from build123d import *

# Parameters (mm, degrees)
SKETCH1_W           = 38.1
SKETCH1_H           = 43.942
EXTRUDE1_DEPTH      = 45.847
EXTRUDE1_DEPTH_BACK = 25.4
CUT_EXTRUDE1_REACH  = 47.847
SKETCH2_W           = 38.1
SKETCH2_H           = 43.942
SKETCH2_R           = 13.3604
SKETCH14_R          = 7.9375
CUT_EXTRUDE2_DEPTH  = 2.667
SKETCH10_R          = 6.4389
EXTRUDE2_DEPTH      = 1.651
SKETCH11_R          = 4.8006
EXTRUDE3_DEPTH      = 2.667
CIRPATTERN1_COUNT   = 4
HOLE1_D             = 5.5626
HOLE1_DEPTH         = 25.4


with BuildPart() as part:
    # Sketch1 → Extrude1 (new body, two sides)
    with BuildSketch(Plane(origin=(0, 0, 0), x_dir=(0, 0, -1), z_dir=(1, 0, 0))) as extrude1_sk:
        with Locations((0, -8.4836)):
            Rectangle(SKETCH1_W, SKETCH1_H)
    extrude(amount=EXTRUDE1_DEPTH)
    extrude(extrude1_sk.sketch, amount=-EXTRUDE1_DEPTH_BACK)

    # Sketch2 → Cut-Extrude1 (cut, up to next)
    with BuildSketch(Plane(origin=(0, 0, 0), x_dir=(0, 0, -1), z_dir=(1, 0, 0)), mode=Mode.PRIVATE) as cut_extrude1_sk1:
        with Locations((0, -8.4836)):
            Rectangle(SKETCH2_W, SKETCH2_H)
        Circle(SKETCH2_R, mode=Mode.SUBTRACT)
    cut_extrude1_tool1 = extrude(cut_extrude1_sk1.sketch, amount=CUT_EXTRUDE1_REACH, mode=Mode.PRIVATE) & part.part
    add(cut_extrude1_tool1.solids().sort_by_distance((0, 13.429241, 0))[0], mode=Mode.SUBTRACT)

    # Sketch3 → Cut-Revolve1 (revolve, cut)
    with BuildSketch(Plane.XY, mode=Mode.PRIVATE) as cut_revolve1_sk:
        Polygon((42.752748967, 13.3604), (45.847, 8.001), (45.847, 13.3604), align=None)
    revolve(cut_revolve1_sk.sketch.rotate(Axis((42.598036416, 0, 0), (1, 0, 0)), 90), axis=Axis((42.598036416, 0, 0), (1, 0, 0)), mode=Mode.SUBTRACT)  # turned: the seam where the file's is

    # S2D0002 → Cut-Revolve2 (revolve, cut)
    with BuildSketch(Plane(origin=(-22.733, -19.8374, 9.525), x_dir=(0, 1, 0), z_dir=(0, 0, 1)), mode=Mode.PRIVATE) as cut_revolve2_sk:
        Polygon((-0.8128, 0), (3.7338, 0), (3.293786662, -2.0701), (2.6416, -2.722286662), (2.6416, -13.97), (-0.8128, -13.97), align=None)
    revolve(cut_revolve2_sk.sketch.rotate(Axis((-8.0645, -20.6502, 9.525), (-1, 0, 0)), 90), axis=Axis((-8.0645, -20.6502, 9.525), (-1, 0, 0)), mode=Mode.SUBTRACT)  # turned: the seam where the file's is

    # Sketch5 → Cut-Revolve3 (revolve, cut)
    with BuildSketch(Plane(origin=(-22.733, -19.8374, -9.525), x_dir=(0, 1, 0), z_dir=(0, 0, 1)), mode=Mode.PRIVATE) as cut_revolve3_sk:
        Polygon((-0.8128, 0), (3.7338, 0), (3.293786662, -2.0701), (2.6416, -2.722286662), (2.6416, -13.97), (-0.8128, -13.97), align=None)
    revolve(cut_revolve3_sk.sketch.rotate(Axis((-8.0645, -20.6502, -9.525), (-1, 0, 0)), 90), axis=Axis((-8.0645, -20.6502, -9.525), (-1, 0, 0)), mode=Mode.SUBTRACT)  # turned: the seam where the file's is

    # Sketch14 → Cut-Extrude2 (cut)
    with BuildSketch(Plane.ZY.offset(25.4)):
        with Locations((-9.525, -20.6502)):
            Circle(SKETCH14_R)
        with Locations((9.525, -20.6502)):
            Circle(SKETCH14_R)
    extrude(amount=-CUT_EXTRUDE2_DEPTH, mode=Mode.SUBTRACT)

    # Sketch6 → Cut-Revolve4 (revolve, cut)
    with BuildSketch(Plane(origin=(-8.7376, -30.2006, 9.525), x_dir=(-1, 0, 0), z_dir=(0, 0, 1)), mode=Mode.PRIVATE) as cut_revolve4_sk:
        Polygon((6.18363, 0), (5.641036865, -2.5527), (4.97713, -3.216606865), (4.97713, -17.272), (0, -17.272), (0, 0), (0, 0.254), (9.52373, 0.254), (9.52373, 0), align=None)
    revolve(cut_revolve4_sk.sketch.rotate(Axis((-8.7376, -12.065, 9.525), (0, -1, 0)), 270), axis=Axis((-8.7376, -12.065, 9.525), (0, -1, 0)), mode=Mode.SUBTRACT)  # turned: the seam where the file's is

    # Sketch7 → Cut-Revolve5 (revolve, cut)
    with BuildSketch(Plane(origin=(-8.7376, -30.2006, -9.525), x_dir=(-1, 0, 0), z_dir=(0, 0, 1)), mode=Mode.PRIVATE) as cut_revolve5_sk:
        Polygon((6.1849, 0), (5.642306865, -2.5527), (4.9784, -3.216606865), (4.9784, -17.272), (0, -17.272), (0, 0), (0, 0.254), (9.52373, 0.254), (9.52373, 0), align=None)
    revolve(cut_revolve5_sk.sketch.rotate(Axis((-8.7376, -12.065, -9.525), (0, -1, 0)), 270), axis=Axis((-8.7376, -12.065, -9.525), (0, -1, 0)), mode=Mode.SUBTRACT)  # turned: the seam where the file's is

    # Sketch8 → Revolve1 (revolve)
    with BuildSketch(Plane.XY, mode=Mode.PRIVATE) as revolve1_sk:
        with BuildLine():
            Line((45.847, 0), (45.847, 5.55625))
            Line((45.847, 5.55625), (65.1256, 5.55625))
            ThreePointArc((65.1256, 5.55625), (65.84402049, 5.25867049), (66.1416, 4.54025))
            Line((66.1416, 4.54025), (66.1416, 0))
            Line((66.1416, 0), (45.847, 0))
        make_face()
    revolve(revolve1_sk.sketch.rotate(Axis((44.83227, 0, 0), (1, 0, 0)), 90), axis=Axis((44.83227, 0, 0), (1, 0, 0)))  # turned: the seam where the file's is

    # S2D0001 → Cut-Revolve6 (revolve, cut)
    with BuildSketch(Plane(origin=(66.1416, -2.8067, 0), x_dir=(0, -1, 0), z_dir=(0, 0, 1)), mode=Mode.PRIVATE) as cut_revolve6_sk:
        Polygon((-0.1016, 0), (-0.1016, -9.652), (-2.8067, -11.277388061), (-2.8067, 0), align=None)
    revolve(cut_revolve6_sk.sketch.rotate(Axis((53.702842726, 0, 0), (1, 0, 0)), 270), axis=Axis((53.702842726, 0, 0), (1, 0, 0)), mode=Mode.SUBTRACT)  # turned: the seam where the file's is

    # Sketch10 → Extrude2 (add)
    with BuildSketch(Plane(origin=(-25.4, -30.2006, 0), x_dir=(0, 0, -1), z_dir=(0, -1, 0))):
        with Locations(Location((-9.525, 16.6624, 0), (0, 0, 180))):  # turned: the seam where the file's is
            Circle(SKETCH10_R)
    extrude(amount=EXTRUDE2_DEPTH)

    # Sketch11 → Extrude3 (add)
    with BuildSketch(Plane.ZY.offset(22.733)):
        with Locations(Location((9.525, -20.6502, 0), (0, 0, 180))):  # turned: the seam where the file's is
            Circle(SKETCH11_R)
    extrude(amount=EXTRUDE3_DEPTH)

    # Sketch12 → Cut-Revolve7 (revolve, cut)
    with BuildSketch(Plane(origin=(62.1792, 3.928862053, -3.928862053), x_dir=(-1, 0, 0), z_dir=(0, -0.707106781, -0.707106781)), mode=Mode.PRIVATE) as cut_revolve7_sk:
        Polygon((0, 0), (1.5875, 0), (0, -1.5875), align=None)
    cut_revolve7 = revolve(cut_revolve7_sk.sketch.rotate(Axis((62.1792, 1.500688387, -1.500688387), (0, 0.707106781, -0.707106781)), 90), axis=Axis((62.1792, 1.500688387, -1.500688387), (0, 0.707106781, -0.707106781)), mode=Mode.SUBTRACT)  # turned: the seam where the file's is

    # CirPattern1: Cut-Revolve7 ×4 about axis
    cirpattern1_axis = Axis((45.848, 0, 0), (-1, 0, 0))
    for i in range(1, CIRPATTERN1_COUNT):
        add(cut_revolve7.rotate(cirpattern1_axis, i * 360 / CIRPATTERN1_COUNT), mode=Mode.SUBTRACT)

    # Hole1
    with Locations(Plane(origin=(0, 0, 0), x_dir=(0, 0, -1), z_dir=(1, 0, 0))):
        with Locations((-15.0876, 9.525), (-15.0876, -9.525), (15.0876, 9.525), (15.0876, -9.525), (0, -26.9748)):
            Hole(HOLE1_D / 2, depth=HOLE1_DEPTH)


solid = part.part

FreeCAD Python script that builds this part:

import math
import FreeCAD as App
import Part
import Sketcher
from FreeCAD import Vector
Q = App.Units.Quantity

doc = App.newDocument("Part")
body = doc.addObject("PartDesign::Body", "Body")

# Sketch on YZ plane
sketch1 = doc.addObject("Sketcher::SketchObject", "Sketch")
body.addObject(sketch1)
sketch1.AttachmentSupport = (doc.YZ_Plane, [""])
sketch1.MapMode = "FlatFace"
sketch1.addGeometry(Part.LineSegment(Vector(13.4874, 19.05, 0), Vector(-30.4546, 19.05, 0)), False)
sketch1.addGeometry(Part.LineSegment(Vector(-30.4546, 19.05, 0), Vector(-30.4546, -19.05, 0)), False)
sketch1.addGeometry(Part.LineSegment(Vector(-30.4546, -19.05, 0), Vector(13.4874, -19.05, 0)), False)
sketch1.addGeometry(Part.LineSegment(Vector(13.4874, -19.05, 0), Vector(13.4874, 19.05, 0)), False)
sketch1.addConstraint(Sketcher.Constraint("Coincident", 0, 2, 1, 1))
sketch1.addConstraint(Sketcher.Constraint("Coincident", 1, 2, 2, 1))
sketch1.addConstraint(Sketcher.Constraint("Coincident", 2, 2, 3, 1))
sketch1.addConstraint(Sketcher.Constraint("Coincident", 3, 2, 0, 1))
sketch1.addConstraint(Sketcher.Constraint("Horizontal", 0))
sketch1.addConstraint(Sketcher.Constraint("Vertical", 1))
sketch1.addConstraint(Sketcher.Constraint("Horizontal", 2))
sketch1.addConstraint(Sketcher.Constraint("Vertical", 3))
sketch1.addConstraint(Sketcher.Constraint("DistanceY", 1, 2, 1, 1, Q("1.5 in")))
sketch1.addConstraint(Sketcher.Constraint("DistanceX", 0, 2, 0, 1, Q("1.73 in")))
sketch1.addConstraint(Sketcher.Constraint("DistanceY", -1, 1, 0, 2, Q("0.75 in")))
sketch1.addConstraint(Sketcher.Constraint("DistanceX", 0, 2, -1, 1, Q("1.199 in")))
pad1 = doc.addObject("PartDesign::Pad", "Pad")
body.addObject(pad1)
pad1.Profile = sketch1
pad1.Type = "TwoLengths"
pad1.Length = Q("1.805 in")
pad1.Length2 = Q("1 in")

# Sketch on YZ plane
sketch2 = doc.addObject("Sketcher::SketchObject", "Sketch001")
body.addObject(sketch2)
sketch2.AttachmentSupport = (doc.YZ_Plane, [""])
sketch2.MapMode = "FlatFace"
sketch2.addGeometry(Part.LineSegment(Vector(13.4874, 19.05, 0), Vector(-30.4546, 19.05, 0)), False)
sketch2.addGeometry(Part.LineSegment(Vector(-30.4546, 19.05, 0), Vector(-30.4546, -19.05, 0)), False)
sketch2.addGeometry(Part.LineSegment(Vector(-30.4546, -19.05, 0), Vector(13.4874, -19.05, 0)), False)
sketch2.addGeometry(Part.LineSegment(Vector(13.4874, -19.05, 0), Vector(13.4874, 19.05, 0)), False)
sketch2.addGeometry(Part.Circle(Vector(0, 0, 0), Vector(0, 0, 1), 13.3604), False)
sketch2.addConstraint(Sketcher.Constraint("Coincident", 0, 2, 1, 1))
sketch2.addConstraint(Sketcher.Constraint("Coincident", 1, 2, 2, 1))
sketch2.addConstraint(Sketcher.Constraint("Coincident", 2, 2, 3, 1))
sketch2.addConstraint(Sketcher.Constraint("Coincident", 3, 2, 0, 1))
sketch2.addConstraint(Sketcher.Constraint("Horizontal", 0))
sketch2.addConstraint(Sketcher.Constraint("Vertical", 1))
sketch2.addConstraint(Sketcher.Constraint("Horizontal", 2))
sketch2.addConstraint(Sketcher.Constraint("Vertical", 3))
sketch2.addConstraint(Sketcher.Constraint("Coincident", 4, 3, -1, 1))
sketch2.addConstraint(Sketcher.Constraint("Diameter", 4, Q("1.052 in")))
sketch2.addConstraint(Sketcher.Constraint("DistanceY", 1, 2, 1, 1, Q("1.5 in")))
sketch2.addConstraint(Sketcher.Constraint("DistanceX", 0, 2, 0, 1, Q("1.73 in")))
sketch2.addConstraint(Sketcher.Constraint("DistanceY", -1, 1, 0, 2, Q("0.75 in")))
sketch2.addConstraint(Sketcher.Constraint("DistanceX", 0, 2, -1, 1, Q("1.199 in")))
pocket1 = doc.addObject("PartDesign::Pocket", "Pocket")
body.addObject(pocket1)
pocket1.Profile = sketch2
pocket1.Type = "UpToFirst"
pocket1.Reversed = True

# Sketch on XY plane
sketch3 = doc.addObject("Sketcher::SketchObject", "Sketch002")
body.addObject(sketch3)
sketch3.AttachmentSupport = (doc.XY_Plane, [""])
sketch3.MapMode = "FlatFace"
sketch3.addGeometry(Part.LineSegment(Vector(42.752749, 13.3604, 0), Vector(45.847, 8.001, 0)), False)
sketch3.addGeometry(Part.LineSegment(Vector(45.847, 8.001, 0), Vector(45.847, 13.3604, 0)), False)
sketch3.addGeometry(Part.LineSegment(Vector(45.847, 13.3604, 0), Vector(42.752749, 13.3604, 0)), False)
sketch3.addConstraint(Sketcher.Constraint("Coincident", 0, 2, 1, 1))
sketch3.addConstraint(Sketcher.Constraint("Coincident", 1, 2, 2, 1))
sketch3.addConstraint(Sketcher.Constraint("Coincident", 2, 2, 0, 1))
sketch3.addConstraint(Sketcher.Constraint("Vertical", 1))
sketch3.addConstraint(Sketcher.Constraint("Horizontal", 2))
sketch3.addConstraint(Sketcher.Constraint("Angle", 0, Q("-60 deg")))
sketch3.addConstraint(Sketcher.Constraint("DistanceY", 1, 1, 1, 2, Q("0.211 in")))
sketch3.addConstraint(Sketcher.Constraint("DistanceX", -1, 1, 0, 2, Q("1.805 in")))
sketch3.addConstraint(Sketcher.Constraint("DistanceY", -1, 1, 0, 2, Q("0.315 in")))
groove = doc.addObject("PartDesign::Groove", "Groove")
body.addObject(groove)
groove.Profile = sketch3
groove.ReferenceAxis = (sketch3, ["H_Axis"])
groove.Angle = 360

# Sketch on XY plane
sketch4 = doc.addObject("Sketcher::SketchObject", "Sketch003")
body.addObject(sketch4)
sketch4.AttachmentSupport = (doc.XY_Plane, [""])
sketch4.MapMode = "FlatFace"
sketch4.AttachmentOffset = App.Placement(Vector(0, 0, 0.375 * 25.4), App.Rotation())
sketch4.addGeometry(Part.LineSegment(Vector(-22.733, -16.1036, 0), Vector(-22.733, -20.6502, 0)), False)
sketch4.addGeometry(Part.LineSegment(Vector(-22.733, -20.6502, 0), Vector(-8.763, -20.6502, 0)), False)
sketch4.addGeometry(Part.LineSegment(Vector(-8.763, -20.6502, 0), Vector(-8.763, -17.1958, 0)), False)
sketch4.addGeometry(Part.LineSegment(Vector(-8.763, -17.1958, 0), Vector(-20.010713, -17.1958, 0)), False)
sketch4.addGeometry(Part.LineSegment(Vector(-20.010713, -17.1958, 0), Vector(-20.6629, -16.543613, 0)), False)
sketch4.addGeometry(Part.LineSegment(Vector(-20.6629, -16.543613, 0), Vector(-22.733, -16.1036, 0)), False)
sketch4.addGeometry(Part.LineSegment(Vector(-8.763, -20.6502, 0), Vector(-22.733, -20.6502, 0)), True)  # axis
sketch4.addConstraint(Sketcher.Constraint("Coincident", 0, 2, 1, 1))
sketch4.addConstraint(Sketcher.Constraint("Coincident", 1, 2, 2, 1))
sketch4.addConstraint(Sketcher.Constraint("Coincident", 2, 2, 3, 1))
sketch4.addConstraint(Sketcher.Constraint("Coincident", 3, 2, 4, 1))
sketch4.addConstraint(Sketcher.Constraint("Coincident", 4, 2, 5, 1))
sketch4.addConstraint(Sketcher.Constraint("Coincident", 5, 2, 0, 1))
sketch4.addConstraint(Sketcher.Constraint("Vertical", 0))
sketch4.addConstraint(Sketcher.Constraint("Horizontal", 1))
sketch4.addConstraint(Sketcher.Constraint("Vertical", 2))
sketch4.addConstraint(Sketcher.Constraint("Horizontal", 3))
sketch4.addConstraint(Sketcher.Constraint("Horizontal", 6))
sketch4.addConstraint(Sketcher.Constraint("Coincident", 6, 1, 1, 2))
sketch4.addConstraint(Sketcher.Constraint("Vertical", 5, 2, 6, 2))
sketch4.addConstraint(Sketcher.Constraint("Angle", 4, Q("135 deg")))
sketch4.addConstraint(Sketcher.Constraint("Angle", 5, Q("168 deg")))
sketch4.addConstraint(Sketcher.Constraint("DistanceX", 1, 1, 1, 2, Q("0.55 in")))
sketch4.addConstraint(Sketcher.Constraint("DistanceY", 0, 2, 0, 1, Q("0.179 in")))
sketch4.addConstraint(Sketcher.Constraint("DistanceY", 2, 1, 2, 2, Q("0.136 in")))
sketch4.addConstraint(Sketcher.Constraint("DistanceX", 0, 2, -1, 1, Q("0.895 in")))
sketch4.addConstraint(Sketcher.Constraint("DistanceY", 0, 2, -1, 1, Q("0.813 in")))
sketch4.addConstraint(Sketcher.Constraint("DistanceX", 4, 2, -1, 1, Q("0.8135 in")))
groove2 = doc.addObject("PartDesign::Groove", "Groove001")
body.addObject(groove2)
groove2.Profile = sketch4
groove2.ReferenceAxis = (sketch4, ["Axis0"])
groove2.Angle = 360

# Sketch on XY plane
sketch5 = doc.addObject("Sketcher::SketchObject", "Sketch004")
body.addObject(sketch5)
sketch5.AttachmentSupport = (doc.XY_Plane, [""])
sketch5.MapMode = "FlatFace"
sketch5.AttachmentOffset = App.Placement(Vector(0, 0, -0.375 * 25.4), App.Rotation())
sketch5.addGeometry(Part.LineSegment(Vector(-22.733, -16.1036, 0), Vector(-22.733, -20.6502, 0)), False)
sketch5.addGeometry(Part.LineSegment(Vector(-22.733, -20.6502, 0), Vector(-8.763, -20.6502, 0)), False)
sketch5.addGeometry(Part.LineSegment(Vector(-8.763, -20.6502, 0), Vector(-8.763, -17.1958, 0)), False)
sketch5.addGeometry(Part.LineSegment(Vector(-8.763, -17.1958, 0), Vector(-20.010713, -17.1958, 0)), False)
sketch5.addGeometry(Part.LineSegment(Vector(-20.010713, -17.1958, 0), Vector(-20.6629, -16.543613, 0)), False)
sketch5.addGeometry(Part.LineSegment(Vector(-20.6629, -16.543613, 0), Vector(-22.733, -16.1036, 0)), False)
sketch5.addGeometry(Part.LineSegment(Vector(-8.763, -20.6502, 0), Vector(-22.733, -20.6502, 0)), True)  # axis
sketch5.addConstraint(Sketcher.Constraint("Coincident", 0, 2, 1, 1))
sketch5.addConstraint(Sketcher.Constraint("Coincident", 1, 2, 2, 1))
sketch5.addConstraint(Sketcher.Constraint("Coincident", 2, 2, 3, 1))
sketch5.addConstraint(Sketcher.Constraint("Coincident", 3, 2, 4, 1))
sketch5.addConstraint(Sketcher.Constraint("Coincident", 4, 2, 5, 1))
sketch5.addConstraint(Sketcher.Constraint("Coincident", 5, 2, 0, 1))
sketch5.addConstraint(Sketcher.Constraint("Vertical", 0))
sketch5.addConstraint(Sketcher.Constraint("Horizontal", 1))
sketch5.addConstraint(Sketcher.Constraint("Vertical", 2))
sketch5.addConstraint(Sketcher.Constraint("Horizontal", 3))
sketch5.addConstraint(Sketcher.Constraint("Horizontal", 6))
sketch5.addConstraint(Sketcher.Constraint("Coincident", 6, 1, 1, 2))
sketch5.addConstraint(Sketcher.Constraint("Vertical", 5, 2, 6, 2))
sketch5.addConstraint(Sketcher.Constraint("Angle", 4, Q("135 deg")))
sketch5.addConstraint(Sketcher.Constraint("Angle", 5, Q("168 deg")))
sketch5.addConstraint(Sketcher.Constraint("DistanceX", 1, 1, 1, 2, Q("0.55 in")))
sketch5.addConstraint(Sketcher.Constraint("DistanceY", 0, 2, 0, 1, Q("0.179 in")))
sketch5.addConstraint(Sketcher.Constraint("DistanceY", 2, 1, 2, 2, Q("0.136 in")))
sketch5.addConstraint(Sketcher.Constraint("DistanceX", 0, 2, -1, 1, Q("0.895 in")))
sketch5.addConstraint(Sketcher.Constraint("DistanceY", 0, 2, -1, 1, Q("0.813 in")))
sketch5.addConstraint(Sketcher.Constraint("DistanceX", 4, 2, -1, 1, Q("0.8135 in")))
groove3 = doc.addObject("PartDesign::Groove", "Groove002")
body.addObject(groove3)
groove3.Profile = sketch5
groove3.ReferenceAxis = (sketch5, ["Axis0"])
groove3.Angle = 360

# Sketch on YZ plane
sketch6 = doc.addObject("Sketcher::SketchObject", "Sketch005")
body.addObject(sketch6)
sketch6.AttachmentSupport = (doc.YZ_Plane, [""])
sketch6.MapMode = "FlatFace"
sketch6.AttachmentOffset = App.Placement(Vector(0, 0, -1 * 25.4), App.Rotation())
sketch6.addGeometry(Part.Circle(Vector(-20.6502, -9.525, 0), Vector(0, 0, 1), 7.9375), False)
sketch6.addGeometry(Part.Circle(Vector(-20.6502, 9.525, 0), Vector(0, 0, 1), 7.9375), False)
sketch6.addConstraint(Sketcher.Constraint("Equal", 0, 1))
sketch6.addConstraint(Sketcher.Constraint("Symmetric", 0, 3, 1, 3, -1))
sketch6.addConstraint(Sketcher.Constraint("Diameter", 0, Q("0.625 in")))
sketch6.addConstraint(Sketcher.Constraint("DistanceY", 0, 3, 1, 3, Q("0.75 in")))
sketch6.addConstraint(Sketcher.Constraint("DistanceX", 0, 3, -1, 1, Q("0.813 in")))
pocket2 = doc.addObject("PartDesign::Pocket", "Pocket001")
body.addObject(pocket2)
pocket2.Profile = sketch6
pocket2.Length = Q("0.105 in")
pocket2.Reversed = True

# Sketch on XY plane
sketch7 = doc.addObject("Sketcher::SketchObject", "Sketch006")
body.addObject(sketch7)
sketch7.AttachmentSupport = (doc.XY_Plane, [""])
sketch7.MapMode = "FlatFace"
sketch7.AttachmentOffset = App.Placement(Vector(0, 0, 0.375 * 25.4), App.Rotation())
sketch7.addGeometry(Part.LineSegment(Vector(-14.378637, -27.6479, 0), Vector(-14.92123, -30.2006, 0)), False)
sketch7.addGeometry(Part.LineSegment(Vector(-14.92123, -30.2006, 0), Vector(-18.26133, -30.2006, 0)), False)
sketch7.addGeometry(Part.LineSegment(Vector(-18.26133, -30.2006, 0), Vector(-18.26133, -30.4546, 0)), False)
sketch7.addGeometry(Part.LineSegment(Vector(-18.26133, -30.4546, 0), Vector(-8.7376, -30.4546, 0)), False)
sketch7.addGeometry(Part.LineSegment(Vector(-8.7376, -30.4546, 0), Vector(-8.7376, -12.9286, 0)), False)
sketch7.addGeometry(Part.LineSegment(Vector(-8.7376, -12.9286, 0), Vector(-13.71473, -12.9286, 0)), False)
sketch7.addGeometry(Part.LineSegment(Vector(-13.71473, -12.9286, 0), Vector(-13.71473, -26.983993, 0)), False)
sketch7.addGeometry(Part.LineSegment(Vector(-13.71473, -26.983993, 0), Vector(-14.378637, -27.6479, 0)), False)
sketch7.addGeometry(Part.LineSegment(Vector(-8.7376, -12.9286, 0), Vector(-8.7376, -30.4546, 0)), True)  # axis
sketch7.addConstraint(Sketcher.Constraint("Coincident", 0, 2, 1, 1))
sketch7.addConstraint(Sketcher.Constraint("Coincident", 1, 2, 2, 1))
sketch7.addConstraint(Sketcher.Constraint("Coincident", 2, 2, 3, 1))
sketch7.addConstraint(Sketcher.Constraint("Coincident", 3, 2, 4, 1))
sketch7.addConstraint(Sketcher.Constraint("Coincident", 4, 2, 5, 1))
sketch7.addConstraint(Sketcher.Constraint("Coincident", 5, 2, 6, 1))
sketch7.addConstraint(Sketcher.Constraint("Coincident", 6, 2, 7, 1))
sketch7.addConstraint(Sketcher.Constraint("Coincident", 7, 2, 0, 1))
sketch7.addConstraint(Sketcher.Constraint("Horizontal", 1))
sketch7.addConstraint(Sketcher.Constraint("Vertical", 2))
sketch7.addConstraint(Sketcher.Constraint("Horizontal", 3))
sketch7.addConstraint(Sketcher.Constraint("Vertical", 4))
sketch7.addConstraint(Sketcher.Constraint("Horizontal", 5))
sketch7.addConstraint(Sketcher.Constraint("Vertical", 6))
sketch7.addConstraint(Sketcher.Constraint("Vertical", 8))
sketch7.addConstraint(Sketcher.Constraint("Coincident", 8, 1, 4, 2))
sketch7.addConstraint(Sketcher.Constraint("Horizontal", 2, 2, 8, 2))
sketch7.addConstraint(Sketcher.Constraint("Angle", 0, Q("-102 deg")))
sketch7.addConstraint(Sketcher.Constraint("Angle", 7, Q("-135 deg")))
sketch7.addConstraint(Sketcher.Constraint("DistanceY", 2, 2, 2, 1, Q("0.01 in")))
sketch7.addConstraint(Sketcher.Constraint("DistanceY", 4, 1, 4, 2, Q("0.69 in")))
sketch7.addConstraint(Sketcher.Constraint("DistanceX", 1, 2, 1, 1, Q("0.1315 in")))
sketch7.addConstraint(Sketcher.Constraint("DistanceY", 0, 2, -1, 1, Q("1.189 in")))
sketch7.addConstraint(Sketcher.Constraint("DistanceX", 3, 2, -1, 1, Q("0.344 in")))
sketch7.addConstraint(Sketcher.Constraint("DistanceX", 1, 2, 5, 2, Q("0.179 in")))
sketch7.addConstraint(Sketcher.Constraint("DistanceY", 7, 2, -1, 1, Q("1.0885 in")))
sketch7.addConstraint(Sketcher.Constraint("DistanceX", 3, 1, 3, 2, Q("9.52373 mm")))
groove4 = doc.addObject("PartDesign::Groove", "Groove003")
body.addObject(groove4)
groove4.Profile = sketch7
groove4.ReferenceAxis = (sketch7, ["Axis0"])
groove4.Angle = 360

# Sketch on XY plane
sketch8 = doc.addObject("Sketcher::SketchObject", "Sketch007")
body.addObject(sketch8)
sketch8.AttachmentSupport = (doc.XY_Plane, [""])
sketch8.MapMode = "FlatFace"
sketch8.AttachmentOffset = App.Placement(Vector(0, 0, -0.375 * 25.4), App.Rotation())
sketch8.addGeometry(Part.LineSegment(Vector(-14.379907, -27.6479, 0), Vector(-14.9225, -30.2006, 0)), False)
sketch8.addGeometry(Part.LineSegment(Vector(-14.9225, -30.2006, 0), Vector(-18.26133, -30.2006, 0)), False)
sketch8.addGeometry(Part.LineSegment(Vector(-18.26133, -30.2006, 0), Vector(-18.26133, -30.4546, 0)), False)
sketch8.addGeometry(Part.LineSegment(Vector(-18.26133, -30.4546, 0), Vector(-8.7376, -30.4546, 0)), False)
sketch8.addGeometry(Part.LineSegment(Vector(-8.7376, -30.4546, 0), Vector(-8.7376, -12.9286, 0)), False)
sketch8.addGeometry(Part.LineSegment(Vector(-8.7376, -12.9286, 0), Vector(-13.716, -12.9286, 0)), False)
sketch8.addGeometry(Part.LineSegment(Vector(-13.716, -12.9286, 0), Vector(-13.716, -26.983993, 0)), False)
sketch8.addGeometry(Part.LineSegment(Vector(-13.716, -26.983993, 0), Vector(-14.379907, -27.6479, 0)), False)
sketch8.addGeometry(Part.LineSegment(Vector(-8.7376, -12.9286, 0), Vector(-8.7376, -30.4546, 0)), True)  # axis
sketch8.addConstraint(Sketcher.Constraint("Coincident", 0, 2, 1, 1))
sketch8.addConstraint(Sketcher.Constraint("Coincident", 1, 2, 2, 1))
sketch8.addConstraint(Sketcher.Constraint("Coincident", 2, 2, 3, 1))
sketch8.addConstraint(Sketcher.Constraint("Coincident", 3, 2, 4, 1))
sketch8.addConstraint(Sketcher.Constraint("Coincident", 4, 2, 5, 1))
sketch8.addConstraint(Sketcher.Constraint("Coincident", 5, 2, 6, 1))
sketch8.addConstraint(Sketcher.Constraint("Coincident", 6, 2, 7, 1))
sketch8.addConstraint(Sketcher.Constraint("Coincident", 7, 2, 0, 1))
sketch8.addConstraint(Sketcher.Constraint("Horizontal", 1))
sketch8.addConstraint(Sketcher.Constraint("Vertical", 2))
sketch8.addConstraint(Sketcher.Constraint("Horizontal", 3))
sketch8.addConstraint(Sketcher.Constraint("Vertical", 4))
sketch8.addConstraint(Sketcher.Constraint("Horizontal", 5))
sketch8.addConstraint(Sketcher.Constraint("Vertical", 6))
sketch8.addConstraint(Sketcher.Constraint("Vertical", 8))
sketch8.addConstraint(Sketcher.Constraint("Coincident", 8, 1, 4, 2))
sketch8.addConstraint(Sketcher.Constraint("Horizontal", 2, 2, 8, 2))
sketch8.addConstraint(Sketcher.Constraint("Angle", 0, Q("-102 deg")))
sketch8.addConstraint(Sketcher.Constraint("Angle", 7, Q("-135 deg")))
sketch8.addConstraint(Sketcher.Constraint("DistanceY", 2, 2, 2, 1, Q("0.01 in")))
sketch8.addConstraint(Sketcher.Constraint("DistanceY", 4, 1, 4, 2, Q("0.69 in")))
sketch8.addConstraint(Sketcher.Constraint("DistanceX", 5, 2, 5, 1, Q("0.196 in")))
sketch8.addConstraint(Sketcher.Constraint("DistanceX", 5, 2, -1, 1, Q("0.54 in")))
sketch8.addConstraint(Sketcher.Constraint("DistanceY", 0, 2, -1, 1, Q("1.189 in")))
sketch8.addConstraint(Sketcher.Constraint("DistanceX", 0, 2, -1, 1, Q("0.5875 in")))
sketch8.addConstraint(Sketcher.Constraint("DistanceY", 7, 2, -1, 1, Q("1.0885 in")))
sketch8.addConstraint(Sketcher.Constraint("DistanceX", 1, 2, 1, 1, Q("3.33883 mm")))
groove5 = doc.addObject("PartDesign::Groove", "Groove004")
body.addObject(groove5)
groove5.Profile = sketch8
groove5.ReferenceAxis = (sketch8, ["Axis0"])
groove5.Angle = 360

# Sketch on XY plane
sketch9 = doc.addObject("Sketcher::SketchObject", "Sketch008")
body.addObject(sketch9)
sketch9.AttachmentSupport = (doc.XY_Plane, [""])
sketch9.MapMode = "FlatFace"
sketch9.addGeometry(Part.LineSegment(Vector(45.847, 5.55625, 0), Vector(45.847, 0, 0)), False)
sketch9.addGeometry(Part.LineSegment(Vector(45.847, 0, 0), Vector(66.1416, 0, 0)), False)
sketch9.addGeometry(Part.LineSegment(Vector(66.1416, 0, 0), Vector(66.1416, 4.54025, 0)), False)
sketch9.addGeometry(Part.ArcOfCircle(Part.Circle(Vector(65.1256, 4.54025, 0), Vector(0, 0, 1), 1.016), math.radians(0), math.radians(90)), False)
sketch9.addGeometry(Part.LineSegment(Vector(65.1256, 5.55625, 0), Vector(45.847, 5.55625, 0)), False)
sketch9.addConstraint(Sketcher.Constraint("Coincident", 0, 2, 1, 1))
sketch9.addConstraint(Sketcher.Constraint("Coincident", 1, 2, 2, 1))
sketch9.addConstraint(Sketcher.Constraint("Tangent", 2, 2, 3, 1))
sketch9.addConstraint(Sketcher.Constraint("Tangent", 3, 2, 4, 1))
sketch9.addConstraint(Sketcher.Constraint("Coincident", 4, 2, 0, 1))
sketch9.addConstraint(Sketcher.Constraint("Vertical", 0))
sketch9.addConstraint(Sketcher.Constraint("Horizontal", 1))
sketch9.addConstraint(Sketcher.Constraint("Vertical", 2))
sketch9.addConstraint(Sketcher.Constraint("Horizontal", 4))
sketch9.addConstraint(Sketcher.Constraint("PointOnObject", 0, 2, -1))
sketch9.addConstraint(Sketcher.Constraint("Radius", 3, Q("0.04 in")))
sketch9.addConstraint(Sketcher.Constraint("DistanceX", 1, 1, 1, 2, Q("0.799 in")))
sketch9.addConstraint(Sketcher.Constraint("DistanceY", 0, 2, 0, 1, Q("0.21875 in")))
sketch9.addConstraint(Sketcher.Constraint("DistanceX", -1, 1, 3, 3, Q("2.564 in")))
revolution = doc.addObject("PartDesign::Revolution", "Revolution")
body.addObject(revolution)
revolution.Profile = sketch9
revolution.ReferenceAxis = (sketch9, ["H_Axis"])
revolution.Angle = 360

# Sketch on XY plane
sketch10 = doc.addObject("Sketcher::SketchObject", "Sketch009")
body.addObject(sketch10)
sketch10.AttachmentSupport = (doc.XY_Plane, [""])
sketch10.MapMode = "FlatFace"
sketch10.addGeometry(Part.LineSegment(Vector(56.4896, -2.7051, 0), Vector(66.1416, -2.7051, 0)), False)
sketch10.addGeometry(Part.LineSegment(Vector(66.1416, -2.7051, 0), Vector(66.1416, 0, 0)), False)
sketch10.addGeometry(Part.LineSegment(Vector(66.1416, 0, 0), Vector(54.864212, 0, 0)), False)
sketch10.addGeometry(Part.LineSegment(Vector(54.864212, 0, 0), Vector(56.4896, -2.7051, 0)), False)
sketch10.addConstraint(Sketcher.Constraint("Coincident", 0, 2, 1, 1))
sketch10.addConstraint(Sketcher.Constraint("Coincident", 1, 2, 2, 1))
sketch10.addConstraint(Sketcher.Constraint("Coincident", 2, 2, 3, 1))
sketch10.addConstraint(Sketcher.Constraint("Coincident", 3, 2, 0, 1))
sketch10.addConstraint(Sketcher.Constraint("Horizontal", 0))
sketch10.addConstraint(Sketcher.Constraint("Vertical", 1))
sketch10.addConstraint(Sketcher.Constraint("Horizontal", 2))
sketch10.addConstraint(Sketcher.Constraint("PointOnObject", 1, 2, -1))
sketch10.addConstraint(Sketcher.Constraint("Angle", 3, Q("-59 deg")))
sketch10.addConstraint(Sketcher.Constraint("DistanceX", 0, 1, 0, 2, Q("0.38 in")))
sketch10.addConstraint(Sketcher.Constraint("DistanceY", 1, 1, 1, 2, Q("0.1065 in")))
sketch10.addConstraint(Sketcher.Constraint("DistanceX", -1, 1, 0, 2, Q("2.604 in")))
groove6 = doc.addObject("PartDesign::Groove", "Groove005")
body.addObject(groove6)
groove6.Profile = sketch10
groove6.ReferenceAxis = (sketch10, ["H_Axis"])
groove6.Angle = 360

# Sketch on XZ plane
sketch11 = doc.addObject("Sketcher::SketchObject", "Sketch010")
body.addObject(sketch11)
sketch11.AttachmentSupport = (doc.XZ_Plane, [""])
sketch11.MapMode = "FlatFace"
sketch11.AttachmentOffset = App.Placement(Vector(0, 0, 1.189 * 25.4), App.Rotation())
sketch11.addGeometry(Part.Circle(Vector(-8.7376, 9.525, 0), Vector(0, 0, 1), 6.4389), False)
sketch11.addConstraint(Sketcher.Constraint("Diameter", 0, Q("0.507 in")))
sketch11.addConstraint(Sketcher.Constraint("DistanceX", 0, 3, -1, 1, Q("0.344 in")))
sketch11.addConstraint(Sketcher.Constraint("DistanceY", -1, 1, 0, 3, Q("0.375 in")))
pad2 = doc.addObject("PartDesign::Pad", "Pad001")
body.addObject(pad2)
pad2.Profile = sketch11
pad2.Length = Q("0.065 in")

# Sketch on YZ plane
sketch12 = doc.addObject("Sketcher::SketchObject", "Sketch011")
body.addObject(sketch12)
sketch12.AttachmentSupport = (doc.YZ_Plane, [""])
sketch12.MapMode = "FlatFace"
sketch12.AttachmentOffset = App.Placement(Vector(0, 0, -0.895 * 25.4), App.Rotation())
sketch12.addGeometry(Part.Circle(Vector(-20.6502, 9.525, 0), Vector(0, 0, 1), 4.8006), False)
sketch12.addConstraint(Sketcher.Constraint("Diameter", 0, Q("0.378 in")))
sketch12.addConstraint(Sketcher.Constraint("DistanceX", 0, 3, -1, 1, Q("0.813 in")))
sketch12.addConstraint(Sketcher.Constraint("DistanceY", -1, 1, 0, 3, Q("0.375 in")))
pad3 = doc.addObject("PartDesign::Pad", "Pad002")
body.addObject(pad3)
pad3.Profile = sketch12
pad3.Length = Q("0.105 in")
pad3.Reversed = True

# Sketch on an angled plane
sketch13 = doc.addObject("Sketcher::SketchObject", "Sketch012")
body.addObject(sketch13)
sketch13.Placement = App.Placement(Vector(62.1792, 3.928862, -3.928862), App.Rotation(Vector(-1, 0, 0), Vector(0, 0.707106781, -0.707106781), Vector(0, -0.707106781, -0.707106781), "ZXY"))
sketch13.addGeometry(Part.LineSegment(Vector(1.5875, 0, 0), Vector(0, 0, 0)), False)
sketch13.addGeometry(Part.LineSegment(Vector(0, 0, 0), Vector(0, -1.5875, 0)), False)
sketch13.addGeometry(Part.LineSegment(Vector(0, -1.5875, 0), Vector(1.5875, 0, 0)), False)
sketch13.addConstraint(Sketcher.Constraint("Coincident", 0, 2, 1, 1))
sketch13.addConstraint(Sketcher.Constraint("Coincident", 1, 2, 2, 1))
sketch13.addConstraint(Sketcher.Constraint("Coincident", 2, 2, 0, 1))
sketch13.addConstraint(Sketcher.Constraint("Horizontal", 0))
sketch13.addConstraint(Sketcher.Constraint("Vertical", 1))
sketch13.addConstraint(Sketcher.Constraint("Coincident", 0, 2, -1, 1))
sketch13.addConstraint(Sketcher.Constraint("Equal", 0, 1))
sketch13.addConstraint(Sketcher.Constraint("DistanceX", 0, 2, 0, 1, Q("0.0625 in")))
groove7 = doc.addObject("PartDesign::Groove", "Groove006")
body.addObject(groove7)
groove7.Profile = sketch13
groove7.ReferenceAxis = (sketch13, ["V_Axis"])
groove7.Angle = 360
doc.recompute()

polarpattern = doc.addObject("PartDesign::PolarPattern", "PolarPattern")
body.addObject(polarpattern)
polarpattern.Originals = [groove7]
polarpattern.Axis = (doc.X_Axis, [""])
polarpattern.Angle = 360
polarpattern.Occurrences = 4
body.Tip = polarpattern

# Sketch on YZ plane
sketch14 = doc.addObject("Sketcher::SketchObject", "Sketch013")
body.addObject(sketch14)
sketch14.AttachmentSupport = (doc.YZ_Plane, [""])
sketch14.MapMode = "FlatFace"
sketch14.addGeometry(Part.Circle(Vector(9.525, 15.0876, 0), Vector(0, 0, 1), 2.7813), False)
sketch14.addGeometry(Part.Circle(Vector(-9.525, 15.0876, 0), Vector(0, 0, 1), 2.7813), False)
sketch14.addGeometry(Part.Circle(Vector(9.525, -15.0876, 0), Vector(0, 0, 1), 2.7813), False)
sketch14.addGeometry(Part.Circle(Vector(-9.525, -15.0876, 0), Vector(0, 0, 1), 2.7813), False)
sketch14.addGeometry(Part.Circle(Vector(-26.9748, 0, 0), Vector(0, 0, 1), 2.7813), False)
sketch14.addConstraint(Sketcher.Constraint("Equal", 0, 1))
sketch14.addConstraint(Sketcher.Constraint("Equal", 1, 2))
sketch14.addConstraint(Sketcher.Constraint("Equal", 2, 3))
sketch14.addConstraint(Sketcher.Constraint("Equal", 3, 4))
sketch14.addConstraint(Sketcher.Constraint("Symmetric", 1, 3, 2, 3, -1, 1))
sketch14.addConstraint(Sketcher.Constraint("Symmetric", 0, 3, 3, 3, -1, 1))
sketch14.addConstraint(Sketcher.Constraint("Symmetric", 0, 3, 1, 3, -2))
sketch14.addConstraint(Sketcher.Constraint("PointOnObject", 4, 3, -1))
sketch14.addConstraint(Sketcher.Constraint("Diameter", 0, Q("0.219 in")))
sketch14.addConstraint(Sketcher.Constraint("DistanceX", 1, 3, 0, 3, Q("0.75 in")))
sketch14.addConstraint(Sketcher.Constraint("DistanceY", -1, 1, 0, 3, Q("0.594 in")))
sketch14.addConstraint(Sketcher.Constraint("DistanceX", 4, 3, -1, 1, Q("1.062 in")))
doc.recompute()
hole = doc.addObject("PartDesign::Hole", "Hole")
body.addObject(hole)
hole.Profile = sketch14
hole.ThreadType = "None"
hole.Diameter = Q("0.219 in")
hole.DepthType = "Dimension"
hole.Depth = Q("1 in")
hole.DrillPoint = "Flat"

doc.recompute()
